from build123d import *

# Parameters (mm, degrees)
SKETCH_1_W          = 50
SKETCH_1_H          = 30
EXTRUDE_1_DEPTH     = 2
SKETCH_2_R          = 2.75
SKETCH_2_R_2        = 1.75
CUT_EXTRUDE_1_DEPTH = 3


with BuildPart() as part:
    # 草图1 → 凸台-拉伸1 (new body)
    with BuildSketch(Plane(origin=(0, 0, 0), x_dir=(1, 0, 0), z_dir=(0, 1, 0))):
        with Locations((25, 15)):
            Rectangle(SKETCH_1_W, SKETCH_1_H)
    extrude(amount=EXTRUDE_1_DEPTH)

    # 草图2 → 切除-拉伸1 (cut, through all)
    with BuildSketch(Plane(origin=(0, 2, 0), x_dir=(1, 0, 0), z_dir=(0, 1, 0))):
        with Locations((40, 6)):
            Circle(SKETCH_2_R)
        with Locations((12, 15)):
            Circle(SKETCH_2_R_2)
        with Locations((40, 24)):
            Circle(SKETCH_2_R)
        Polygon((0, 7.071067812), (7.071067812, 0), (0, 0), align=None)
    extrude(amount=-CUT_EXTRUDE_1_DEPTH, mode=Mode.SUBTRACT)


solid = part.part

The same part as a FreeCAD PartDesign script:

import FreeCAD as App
import Part
import Sketcher

V = App.Vector
Q = App.Units.Quantity


def add_polygon(sketch, points):
    """Adds a closed chain of lines whose ends are joined by coincident constraints."""
    first, n = sketch.GeometryCount, len(points)
    for a, b in zip(points, points[1:] + points[:1]):
        sketch.addGeometry(Part.LineSegment(App.Vector(*a, 0), App.Vector(*b, 0)), False)
    for i in range(n):
        sketch.addConstraint(Sketcher.Constraint("Coincident", first + i, 2, first + (i + 1) % n, 1))

doc = App.newDocument("Part")
body = doc.addObject("PartDesign::Body", "Body")

# Sketch on XZ plane
sketch1 = body.newObject("Sketcher::SketchObject", "Sketch")
sketch1.AttachmentSupport = (doc.getObject("XZ_Plane"), [""])
sketch1.MapMode = "FlatFace"
add_polygon(sketch1, [(0, -30), (0, 0), (50, 0), (50, -30)])  # lines 0-3
sketch1.addConstraint(Sketcher.Constraint("Vertical", 0))
sketch1.addConstraint(Sketcher.Constraint("Horizontal", 1))
sketch1.addConstraint(Sketcher.Constraint("Vertical", 2))
sketch1.addConstraint(Sketcher.Constraint("Horizontal", 3))
sketch1.addConstraint(Sketcher.Constraint("Coincident", 0, 2, -1, 1))
sketch1.addConstraint(Sketcher.Constraint("DistanceX", 1, 1, 1, 2, Q("50 mm")))
sketch1.addConstraint(Sketcher.Constraint("DistanceY", 0, 1, 0, 2, Q("30 mm")))
pad1 = body.newObject("PartDesign::Pad", "Pad")
pad1.Profile = sketch1
pad1.Length = 2
pad1.Reversed = True

# Sketch on XZ plane
sketch2 = body.newObject("Sketcher::SketchObject", "Sketch001")
sketch2.AttachmentSupport = (doc.getObject("XZ_Plane"), [""])
sketch2.MapMode = "FlatFace"
sketch2.AttachmentOffset = App.Placement(V(0, 0, -2), App.Rotation())
sketch2.addGeometry(Part.Circle(V(40, -6, 0), V(0, 0, 1), 2.8), False)  # 0
sketch2.addGeometry(Part.Circle(V(12, -15, 0), V(0, 0, 1), 1.8), False)  # 1
sketch2.addGeometry(Part.Circle(V(40, -24, 0), V(0, 0, 1), 2.8), False)  # 2
add_polygon(sketch2, [(7.1, 0), (0, -7.1), (0, 0)])  # lines 3-5
sketch2.addConstraint(Sketcher.Constraint("Vertical", 4))
sketch2.addConstraint(Sketcher.Constraint("Horizontal", 5))
sketch2.addConstraint(Sketcher.Constraint("Coincident", 4, 2, -1, 1))
sketch2.addConstraint(Sketcher.Constraint("Equal", 0, 2))
sketch2.addConstraint(Sketcher.Constraint("Vertical", 0, 3, 2, 3))
sketch2.addConstraint(Sketcher.Constraint("Equal", 5, 4))
sketch2.addConstraint(Sketcher.Constraint("Diameter", 0, Q("5.5 mm")))
sketch2.addConstraint(Sketcher.Constraint("Diameter", 1, Q("3.5 mm")))
sketch2.addConstraint(Sketcher.Constraint("Distance", 3, Q("10 mm")))
sketch2.addConstraint(Sketcher.Constraint("DistanceX", -1, 1, 0, 3, Q("40 mm")))
sketch2.addConstraint(Sketcher.Constraint("DistanceY", 0, 3, -1, 1, Q("6 mm")))
sketch2.addConstraint(Sketcher.Constraint("DistanceX", -1, 1, 1, 3, Q("12 mm")))
sketch2.addConstraint(Sketcher.Constraint("DistanceY", 1, 3, -1, 1, Q("15 mm")))
sketch2.addConstraint(Sketcher.Constraint("DistanceY", 2, 3, -1, 1, Q("24 mm")))
pocket1 = body.newObject("PartDesign::Pocket", "Pocket")
pocket1.Profile = sketch2
pocket1.Type = "ThroughAll"
pocket1.Reversed = True

doc.recompute()
